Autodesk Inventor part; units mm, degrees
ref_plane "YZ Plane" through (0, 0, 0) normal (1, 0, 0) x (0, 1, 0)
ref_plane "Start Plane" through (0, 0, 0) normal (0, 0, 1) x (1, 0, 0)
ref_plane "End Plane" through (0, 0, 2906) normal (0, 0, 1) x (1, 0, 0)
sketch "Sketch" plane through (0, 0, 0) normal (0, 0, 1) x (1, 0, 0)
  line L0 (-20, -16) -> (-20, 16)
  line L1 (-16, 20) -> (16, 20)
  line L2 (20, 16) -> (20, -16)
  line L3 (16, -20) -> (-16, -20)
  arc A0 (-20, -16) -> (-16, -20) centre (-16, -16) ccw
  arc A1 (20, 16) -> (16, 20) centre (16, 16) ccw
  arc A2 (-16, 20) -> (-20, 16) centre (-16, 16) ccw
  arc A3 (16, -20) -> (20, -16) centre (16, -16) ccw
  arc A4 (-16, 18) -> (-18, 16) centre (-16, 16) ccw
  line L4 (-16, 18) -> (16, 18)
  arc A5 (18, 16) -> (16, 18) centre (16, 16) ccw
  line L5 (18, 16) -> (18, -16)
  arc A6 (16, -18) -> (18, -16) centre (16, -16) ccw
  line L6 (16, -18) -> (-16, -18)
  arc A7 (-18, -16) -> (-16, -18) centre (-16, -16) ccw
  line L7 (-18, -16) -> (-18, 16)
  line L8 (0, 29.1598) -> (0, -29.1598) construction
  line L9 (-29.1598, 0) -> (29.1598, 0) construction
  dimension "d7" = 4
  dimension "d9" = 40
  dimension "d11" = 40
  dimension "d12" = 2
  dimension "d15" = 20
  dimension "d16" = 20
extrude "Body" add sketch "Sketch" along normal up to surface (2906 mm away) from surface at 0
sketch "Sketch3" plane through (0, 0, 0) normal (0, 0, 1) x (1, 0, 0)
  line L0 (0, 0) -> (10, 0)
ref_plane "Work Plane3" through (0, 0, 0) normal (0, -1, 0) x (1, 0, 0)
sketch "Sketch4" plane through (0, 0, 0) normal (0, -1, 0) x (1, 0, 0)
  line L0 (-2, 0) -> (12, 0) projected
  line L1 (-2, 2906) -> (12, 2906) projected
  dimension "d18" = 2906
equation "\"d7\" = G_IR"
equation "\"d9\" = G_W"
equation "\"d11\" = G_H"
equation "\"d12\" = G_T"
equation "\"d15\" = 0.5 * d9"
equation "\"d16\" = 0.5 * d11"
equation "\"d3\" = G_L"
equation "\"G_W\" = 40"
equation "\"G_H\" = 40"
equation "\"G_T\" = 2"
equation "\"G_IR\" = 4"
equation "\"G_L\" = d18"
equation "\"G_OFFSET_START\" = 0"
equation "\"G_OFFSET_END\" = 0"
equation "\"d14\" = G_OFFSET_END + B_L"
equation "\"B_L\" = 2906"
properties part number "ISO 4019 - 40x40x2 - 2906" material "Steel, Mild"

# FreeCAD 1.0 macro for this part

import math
import FreeCAD as App
import Part
import Sketcher
from FreeCAD import Vector
Q = App.Units.Quantity

doc = App.newDocument("Part")
body = doc.addObject("PartDesign::Body", "Body")

sketch1 = body.newObject("Sketcher::SketchObject", "Sketch")
sketch1.AttachmentSupport = (doc.getObject("XY_Plane"), [""])
sketch1.MapMode = "FlatFace"
sketch1.addGeometry([
    Part.LineSegment(Vector(-20, 16, 0), Vector(-20, -16, 0)),
    Part.ArcOfCircle(Part.Circle(Vector(-16, -16, 0), Vector(0, 0, 1), 4), math.radians(180), math.radians(270)),
    Part.LineSegment(Vector(-16, -20, 0), Vector(16, -20, 0)),
    Part.ArcOfCircle(Part.Circle(Vector(16, -16, 0), Vector(0, 0, 1), 4), math.radians(-90), math.radians(0)),
    Part.LineSegment(Vector(20, -16, 0), Vector(20, 16, 0)),
    Part.ArcOfCircle(Part.Circle(Vector(16, 16, 0), Vector(0, 0, 1), 4), math.radians(0), math.radians(90)),
    Part.LineSegment(Vector(16, 20, 0), Vector(-16, 20, 0)),
    Part.ArcOfCircle(Part.Circle(Vector(-16, 16, 0), Vector(0, 0, 1), 4), math.radians(90), math.radians(180)),
    Part.ArcOfCircle(Part.Circle(Vector(-16, 16, 0), Vector(0, 0, 1), 2), math.radians(90), math.radians(180)),
    Part.LineSegment(Vector(-16, 18, 0), Vector(16, 18, 0)),
    Part.ArcOfCircle(Part.Circle(Vector(16, 16, 0), Vector(0, 0, 1), 2), math.radians(0), math.radians(90)),
    Part.LineSegment(Vector(18, 16, 0), Vector(18, -16, 0)),
    Part.ArcOfCircle(Part.Circle(Vector(16, -16, 0), Vector(0, 0, 1), 2), math.radians(-90), math.radians(0)),
    Part.LineSegment(Vector(16, -18, 0), Vector(-16, -18, 0)),
    Part.ArcOfCircle(Part.Circle(Vector(-16, -16, 0), Vector(0, 0, 1), 2), math.radians(180), math.radians(270)),
    Part.LineSegment(Vector(-18, -16, 0), Vector(-18, 16, 0)),
], False)
sketch1.addConstraint([
    Sketcher.Constraint("Tangent", 0, 2, 1, 1),
    Sketcher.Constraint("Tangent", 1, 2, 2, 1),
    Sketcher.Constraint("Tangent", 2, 2, 3, 1),
    Sketcher.Constraint("Tangent", 3, 2, 4, 1),
    Sketcher.Constraint("Tangent", 4, 2, 5, 1),
    Sketcher.Constraint("Tangent", 5, 2, 6, 1),
    Sketcher.Constraint("Tangent", 6, 2, 7, 1),
    Sketcher.Constraint("Tangent", 7, 2, 0, 1),
    Sketcher.Constraint("Tangent", 8, 1, 9, 1),
    Sketcher.Constraint("Tangent", 9, 2, 10, 2),
    Sketcher.Constraint("Tangent", 10, 1, 11, 1),
    Sketcher.Constraint("Tangent", 11, 2, 12, 2),
    Sketcher.Constraint("Tangent", 12, 1, 13, 1),
    Sketcher.Constraint("Tangent", 13, 2, 14, 2),
    Sketcher.Constraint("Tangent", 14, 1, 15, 1),
    Sketcher.Constraint("Tangent", 15, 2, 8, 2),
    Sketcher.Constraint("Vertical", 0),
    Sketcher.Constraint("Horizontal", 2),
    Sketcher.Constraint("Vertical", 4),
    Sketcher.Constraint("Horizontal", 6),
    Sketcher.Constraint("Horizontal", 9),
    Sketcher.Constraint("Vertical", 11),
    Sketcher.Constraint("Horizontal", 13),
    Sketcher.Constraint("Vertical", 15),
    Sketcher.Constraint("Coincident", 8, 3, 7, 3),
    Sketcher.Constraint("Coincident", 10, 3, 5, 3),
    Sketcher.Constraint("Coincident", 12, 3, 3, 3),
    Sketcher.Constraint("Equal", 1, 3),
    Sketcher.Constraint("Equal", 3, 5),
    Sketcher.Constraint("Equal", 5, 7),
    Sketcher.Constraint("Equal", 12, 14),
    Sketcher.Constraint("Symmetric", 1, 3, 5, 3, -1, 1),
    Sketcher.Constraint("Equal", 13, 0),
    Sketcher.Constraint("Radius", 1, Q("4 mm")),
    Sketcher.Constraint("Radius", 8, Q("2 mm")),
    Sketcher.Constraint("DistanceX", 0, 2, -1, 1, Q("20 mm")),
])
pad1 = body.newObject("PartDesign::Pad", "Pad")
pad1.Profile = sketch1
pad1.Length = 2906

doc.recompute()
